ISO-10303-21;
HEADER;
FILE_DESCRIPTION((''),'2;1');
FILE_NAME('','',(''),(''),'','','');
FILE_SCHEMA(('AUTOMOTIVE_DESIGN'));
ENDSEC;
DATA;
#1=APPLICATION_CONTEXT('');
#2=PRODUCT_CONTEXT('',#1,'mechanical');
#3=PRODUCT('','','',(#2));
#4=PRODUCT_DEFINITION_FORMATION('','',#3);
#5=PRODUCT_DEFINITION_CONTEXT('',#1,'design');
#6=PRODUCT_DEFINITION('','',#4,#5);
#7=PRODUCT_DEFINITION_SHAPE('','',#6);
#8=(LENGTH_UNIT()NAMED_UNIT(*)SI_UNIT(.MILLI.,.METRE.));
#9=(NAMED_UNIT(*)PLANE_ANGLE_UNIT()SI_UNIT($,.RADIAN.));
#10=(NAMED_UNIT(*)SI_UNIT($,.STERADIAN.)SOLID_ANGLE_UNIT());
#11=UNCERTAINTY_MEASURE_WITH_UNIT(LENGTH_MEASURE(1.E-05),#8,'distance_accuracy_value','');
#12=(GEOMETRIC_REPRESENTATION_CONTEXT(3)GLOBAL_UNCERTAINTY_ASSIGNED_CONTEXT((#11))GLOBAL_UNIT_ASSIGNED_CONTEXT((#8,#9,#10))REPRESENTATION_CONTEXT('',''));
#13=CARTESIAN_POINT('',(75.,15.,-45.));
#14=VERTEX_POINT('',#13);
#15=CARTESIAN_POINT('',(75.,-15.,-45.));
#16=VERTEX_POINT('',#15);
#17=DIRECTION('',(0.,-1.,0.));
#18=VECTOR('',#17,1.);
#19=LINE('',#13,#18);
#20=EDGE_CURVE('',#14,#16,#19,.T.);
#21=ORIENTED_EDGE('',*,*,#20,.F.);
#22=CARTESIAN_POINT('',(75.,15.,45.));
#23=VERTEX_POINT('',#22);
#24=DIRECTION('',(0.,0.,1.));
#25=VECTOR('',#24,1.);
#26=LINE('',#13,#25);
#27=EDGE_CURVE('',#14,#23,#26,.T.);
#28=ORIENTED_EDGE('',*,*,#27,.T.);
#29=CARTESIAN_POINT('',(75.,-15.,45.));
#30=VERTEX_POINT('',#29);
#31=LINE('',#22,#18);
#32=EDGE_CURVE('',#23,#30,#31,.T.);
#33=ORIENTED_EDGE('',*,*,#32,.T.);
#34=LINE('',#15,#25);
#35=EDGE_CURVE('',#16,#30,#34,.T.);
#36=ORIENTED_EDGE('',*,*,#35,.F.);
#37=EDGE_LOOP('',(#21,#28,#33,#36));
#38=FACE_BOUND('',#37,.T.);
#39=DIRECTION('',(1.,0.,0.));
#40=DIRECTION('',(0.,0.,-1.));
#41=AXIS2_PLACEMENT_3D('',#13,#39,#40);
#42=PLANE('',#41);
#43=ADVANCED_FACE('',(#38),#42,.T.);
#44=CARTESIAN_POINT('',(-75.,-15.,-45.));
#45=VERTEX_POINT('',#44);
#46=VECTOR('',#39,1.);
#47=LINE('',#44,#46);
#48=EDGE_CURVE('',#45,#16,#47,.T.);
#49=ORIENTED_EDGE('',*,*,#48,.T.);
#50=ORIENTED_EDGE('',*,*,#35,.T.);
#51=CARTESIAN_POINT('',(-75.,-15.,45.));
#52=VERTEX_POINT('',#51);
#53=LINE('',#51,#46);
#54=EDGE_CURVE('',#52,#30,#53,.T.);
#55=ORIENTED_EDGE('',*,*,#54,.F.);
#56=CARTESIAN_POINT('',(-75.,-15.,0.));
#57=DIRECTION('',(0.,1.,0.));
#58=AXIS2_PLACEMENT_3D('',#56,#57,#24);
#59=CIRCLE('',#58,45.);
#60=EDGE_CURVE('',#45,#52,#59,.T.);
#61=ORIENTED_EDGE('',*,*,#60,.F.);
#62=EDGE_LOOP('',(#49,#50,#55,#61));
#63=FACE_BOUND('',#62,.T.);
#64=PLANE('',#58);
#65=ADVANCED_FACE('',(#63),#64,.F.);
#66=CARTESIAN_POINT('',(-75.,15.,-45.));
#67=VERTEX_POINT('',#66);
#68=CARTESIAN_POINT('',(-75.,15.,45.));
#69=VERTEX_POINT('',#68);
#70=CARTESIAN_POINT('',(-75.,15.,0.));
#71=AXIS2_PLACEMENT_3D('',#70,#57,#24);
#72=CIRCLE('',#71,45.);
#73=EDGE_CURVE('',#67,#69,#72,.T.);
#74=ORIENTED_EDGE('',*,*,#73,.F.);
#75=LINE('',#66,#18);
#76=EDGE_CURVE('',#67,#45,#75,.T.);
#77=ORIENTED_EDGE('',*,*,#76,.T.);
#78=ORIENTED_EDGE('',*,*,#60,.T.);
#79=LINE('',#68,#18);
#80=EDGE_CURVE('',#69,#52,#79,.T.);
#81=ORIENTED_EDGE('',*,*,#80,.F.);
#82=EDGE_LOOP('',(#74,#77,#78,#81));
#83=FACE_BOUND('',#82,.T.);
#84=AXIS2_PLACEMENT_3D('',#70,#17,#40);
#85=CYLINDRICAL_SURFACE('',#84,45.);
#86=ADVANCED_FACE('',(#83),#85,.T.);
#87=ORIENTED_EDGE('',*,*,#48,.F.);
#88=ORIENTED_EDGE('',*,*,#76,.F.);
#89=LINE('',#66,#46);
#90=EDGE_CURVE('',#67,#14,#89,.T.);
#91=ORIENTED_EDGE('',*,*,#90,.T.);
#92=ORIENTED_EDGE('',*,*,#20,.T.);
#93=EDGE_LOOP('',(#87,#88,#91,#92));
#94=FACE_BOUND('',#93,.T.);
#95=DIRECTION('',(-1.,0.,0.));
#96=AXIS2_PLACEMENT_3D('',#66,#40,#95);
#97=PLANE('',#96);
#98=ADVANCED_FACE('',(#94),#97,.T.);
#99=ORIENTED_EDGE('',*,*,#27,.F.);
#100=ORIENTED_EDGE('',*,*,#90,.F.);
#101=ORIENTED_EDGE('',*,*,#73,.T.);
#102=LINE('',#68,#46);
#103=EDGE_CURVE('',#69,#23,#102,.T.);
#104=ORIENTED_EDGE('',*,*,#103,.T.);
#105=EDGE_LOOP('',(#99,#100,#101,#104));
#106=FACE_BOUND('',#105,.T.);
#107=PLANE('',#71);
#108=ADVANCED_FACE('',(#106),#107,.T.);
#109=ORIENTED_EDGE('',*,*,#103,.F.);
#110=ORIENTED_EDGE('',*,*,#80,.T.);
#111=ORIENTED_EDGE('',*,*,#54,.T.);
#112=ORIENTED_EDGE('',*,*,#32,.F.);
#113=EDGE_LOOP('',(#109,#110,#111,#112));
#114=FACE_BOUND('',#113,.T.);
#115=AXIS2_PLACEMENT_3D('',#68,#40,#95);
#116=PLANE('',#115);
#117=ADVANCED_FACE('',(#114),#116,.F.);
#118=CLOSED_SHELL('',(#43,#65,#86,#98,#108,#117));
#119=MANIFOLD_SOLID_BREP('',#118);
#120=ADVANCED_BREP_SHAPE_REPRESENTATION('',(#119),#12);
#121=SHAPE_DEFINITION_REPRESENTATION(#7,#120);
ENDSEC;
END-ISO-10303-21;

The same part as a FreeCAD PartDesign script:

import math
import FreeCAD as App
import Part
import Sketcher
from FreeCAD import Vector
Q = App.Units.Quantity

doc = App.newDocument("Part")
body = doc.addObject("PartDesign::Body", "Body")

# Sketch on XZ plane
sketch1 = doc.addObject("Sketcher::SketchObject", "Sketch")
body.addObject(sketch1)
sketch1.AttachmentSupport = (doc.XZ_Plane, [""])
sketch1.MapMode = "FlatFace"
sketch1.addGeometry([
    Part.LineSegment(Vector(75, -45, 0), Vector(-75, -45, 0)),
    Part.ArcOfCircle(Part.Circle(Vector(-75, 0, 0), Vector(0, 0, 1), 45), math.radians(90), math.radians(270)),
    Part.LineSegment(Vector(-75, 45, 0), Vector(75, 45, 0)),
    Part.LineSegment(Vector(75, 45, 0), Vector(75, -45, 0)),
], False)
sketch1.addConstraint([
    Sketcher.Constraint("Tangent", 0, 2, 1, 2),
    Sketcher.Constraint("Tangent", 1, 1, 2, 1),
    Sketcher.Constraint("Coincident", 2, 2, 3, 1),
    Sketcher.Constraint("Coincident", 3, 2, 0, 1),
    Sketcher.Constraint("Horizontal", 0),
    Sketcher.Constraint("Horizontal", 2),
    Sketcher.Constraint("Vertical", 3),
    Sketcher.Constraint("Symmetric", 0, 2, 2, 2, -1, 1),
    Sketcher.Constraint("Radius", 1, Q("45 mm")),
    Sketcher.Constraint("DistanceX", 0, 2, 0, 1, Q("150 mm")),
])
pad1 = doc.addObject("PartDesign::Pad", "Pad")
body.addObject(pad1)
pad1.Profile = sketch1
pad1.Length = 30
pad1.Midplane = True

doc.recompute()
